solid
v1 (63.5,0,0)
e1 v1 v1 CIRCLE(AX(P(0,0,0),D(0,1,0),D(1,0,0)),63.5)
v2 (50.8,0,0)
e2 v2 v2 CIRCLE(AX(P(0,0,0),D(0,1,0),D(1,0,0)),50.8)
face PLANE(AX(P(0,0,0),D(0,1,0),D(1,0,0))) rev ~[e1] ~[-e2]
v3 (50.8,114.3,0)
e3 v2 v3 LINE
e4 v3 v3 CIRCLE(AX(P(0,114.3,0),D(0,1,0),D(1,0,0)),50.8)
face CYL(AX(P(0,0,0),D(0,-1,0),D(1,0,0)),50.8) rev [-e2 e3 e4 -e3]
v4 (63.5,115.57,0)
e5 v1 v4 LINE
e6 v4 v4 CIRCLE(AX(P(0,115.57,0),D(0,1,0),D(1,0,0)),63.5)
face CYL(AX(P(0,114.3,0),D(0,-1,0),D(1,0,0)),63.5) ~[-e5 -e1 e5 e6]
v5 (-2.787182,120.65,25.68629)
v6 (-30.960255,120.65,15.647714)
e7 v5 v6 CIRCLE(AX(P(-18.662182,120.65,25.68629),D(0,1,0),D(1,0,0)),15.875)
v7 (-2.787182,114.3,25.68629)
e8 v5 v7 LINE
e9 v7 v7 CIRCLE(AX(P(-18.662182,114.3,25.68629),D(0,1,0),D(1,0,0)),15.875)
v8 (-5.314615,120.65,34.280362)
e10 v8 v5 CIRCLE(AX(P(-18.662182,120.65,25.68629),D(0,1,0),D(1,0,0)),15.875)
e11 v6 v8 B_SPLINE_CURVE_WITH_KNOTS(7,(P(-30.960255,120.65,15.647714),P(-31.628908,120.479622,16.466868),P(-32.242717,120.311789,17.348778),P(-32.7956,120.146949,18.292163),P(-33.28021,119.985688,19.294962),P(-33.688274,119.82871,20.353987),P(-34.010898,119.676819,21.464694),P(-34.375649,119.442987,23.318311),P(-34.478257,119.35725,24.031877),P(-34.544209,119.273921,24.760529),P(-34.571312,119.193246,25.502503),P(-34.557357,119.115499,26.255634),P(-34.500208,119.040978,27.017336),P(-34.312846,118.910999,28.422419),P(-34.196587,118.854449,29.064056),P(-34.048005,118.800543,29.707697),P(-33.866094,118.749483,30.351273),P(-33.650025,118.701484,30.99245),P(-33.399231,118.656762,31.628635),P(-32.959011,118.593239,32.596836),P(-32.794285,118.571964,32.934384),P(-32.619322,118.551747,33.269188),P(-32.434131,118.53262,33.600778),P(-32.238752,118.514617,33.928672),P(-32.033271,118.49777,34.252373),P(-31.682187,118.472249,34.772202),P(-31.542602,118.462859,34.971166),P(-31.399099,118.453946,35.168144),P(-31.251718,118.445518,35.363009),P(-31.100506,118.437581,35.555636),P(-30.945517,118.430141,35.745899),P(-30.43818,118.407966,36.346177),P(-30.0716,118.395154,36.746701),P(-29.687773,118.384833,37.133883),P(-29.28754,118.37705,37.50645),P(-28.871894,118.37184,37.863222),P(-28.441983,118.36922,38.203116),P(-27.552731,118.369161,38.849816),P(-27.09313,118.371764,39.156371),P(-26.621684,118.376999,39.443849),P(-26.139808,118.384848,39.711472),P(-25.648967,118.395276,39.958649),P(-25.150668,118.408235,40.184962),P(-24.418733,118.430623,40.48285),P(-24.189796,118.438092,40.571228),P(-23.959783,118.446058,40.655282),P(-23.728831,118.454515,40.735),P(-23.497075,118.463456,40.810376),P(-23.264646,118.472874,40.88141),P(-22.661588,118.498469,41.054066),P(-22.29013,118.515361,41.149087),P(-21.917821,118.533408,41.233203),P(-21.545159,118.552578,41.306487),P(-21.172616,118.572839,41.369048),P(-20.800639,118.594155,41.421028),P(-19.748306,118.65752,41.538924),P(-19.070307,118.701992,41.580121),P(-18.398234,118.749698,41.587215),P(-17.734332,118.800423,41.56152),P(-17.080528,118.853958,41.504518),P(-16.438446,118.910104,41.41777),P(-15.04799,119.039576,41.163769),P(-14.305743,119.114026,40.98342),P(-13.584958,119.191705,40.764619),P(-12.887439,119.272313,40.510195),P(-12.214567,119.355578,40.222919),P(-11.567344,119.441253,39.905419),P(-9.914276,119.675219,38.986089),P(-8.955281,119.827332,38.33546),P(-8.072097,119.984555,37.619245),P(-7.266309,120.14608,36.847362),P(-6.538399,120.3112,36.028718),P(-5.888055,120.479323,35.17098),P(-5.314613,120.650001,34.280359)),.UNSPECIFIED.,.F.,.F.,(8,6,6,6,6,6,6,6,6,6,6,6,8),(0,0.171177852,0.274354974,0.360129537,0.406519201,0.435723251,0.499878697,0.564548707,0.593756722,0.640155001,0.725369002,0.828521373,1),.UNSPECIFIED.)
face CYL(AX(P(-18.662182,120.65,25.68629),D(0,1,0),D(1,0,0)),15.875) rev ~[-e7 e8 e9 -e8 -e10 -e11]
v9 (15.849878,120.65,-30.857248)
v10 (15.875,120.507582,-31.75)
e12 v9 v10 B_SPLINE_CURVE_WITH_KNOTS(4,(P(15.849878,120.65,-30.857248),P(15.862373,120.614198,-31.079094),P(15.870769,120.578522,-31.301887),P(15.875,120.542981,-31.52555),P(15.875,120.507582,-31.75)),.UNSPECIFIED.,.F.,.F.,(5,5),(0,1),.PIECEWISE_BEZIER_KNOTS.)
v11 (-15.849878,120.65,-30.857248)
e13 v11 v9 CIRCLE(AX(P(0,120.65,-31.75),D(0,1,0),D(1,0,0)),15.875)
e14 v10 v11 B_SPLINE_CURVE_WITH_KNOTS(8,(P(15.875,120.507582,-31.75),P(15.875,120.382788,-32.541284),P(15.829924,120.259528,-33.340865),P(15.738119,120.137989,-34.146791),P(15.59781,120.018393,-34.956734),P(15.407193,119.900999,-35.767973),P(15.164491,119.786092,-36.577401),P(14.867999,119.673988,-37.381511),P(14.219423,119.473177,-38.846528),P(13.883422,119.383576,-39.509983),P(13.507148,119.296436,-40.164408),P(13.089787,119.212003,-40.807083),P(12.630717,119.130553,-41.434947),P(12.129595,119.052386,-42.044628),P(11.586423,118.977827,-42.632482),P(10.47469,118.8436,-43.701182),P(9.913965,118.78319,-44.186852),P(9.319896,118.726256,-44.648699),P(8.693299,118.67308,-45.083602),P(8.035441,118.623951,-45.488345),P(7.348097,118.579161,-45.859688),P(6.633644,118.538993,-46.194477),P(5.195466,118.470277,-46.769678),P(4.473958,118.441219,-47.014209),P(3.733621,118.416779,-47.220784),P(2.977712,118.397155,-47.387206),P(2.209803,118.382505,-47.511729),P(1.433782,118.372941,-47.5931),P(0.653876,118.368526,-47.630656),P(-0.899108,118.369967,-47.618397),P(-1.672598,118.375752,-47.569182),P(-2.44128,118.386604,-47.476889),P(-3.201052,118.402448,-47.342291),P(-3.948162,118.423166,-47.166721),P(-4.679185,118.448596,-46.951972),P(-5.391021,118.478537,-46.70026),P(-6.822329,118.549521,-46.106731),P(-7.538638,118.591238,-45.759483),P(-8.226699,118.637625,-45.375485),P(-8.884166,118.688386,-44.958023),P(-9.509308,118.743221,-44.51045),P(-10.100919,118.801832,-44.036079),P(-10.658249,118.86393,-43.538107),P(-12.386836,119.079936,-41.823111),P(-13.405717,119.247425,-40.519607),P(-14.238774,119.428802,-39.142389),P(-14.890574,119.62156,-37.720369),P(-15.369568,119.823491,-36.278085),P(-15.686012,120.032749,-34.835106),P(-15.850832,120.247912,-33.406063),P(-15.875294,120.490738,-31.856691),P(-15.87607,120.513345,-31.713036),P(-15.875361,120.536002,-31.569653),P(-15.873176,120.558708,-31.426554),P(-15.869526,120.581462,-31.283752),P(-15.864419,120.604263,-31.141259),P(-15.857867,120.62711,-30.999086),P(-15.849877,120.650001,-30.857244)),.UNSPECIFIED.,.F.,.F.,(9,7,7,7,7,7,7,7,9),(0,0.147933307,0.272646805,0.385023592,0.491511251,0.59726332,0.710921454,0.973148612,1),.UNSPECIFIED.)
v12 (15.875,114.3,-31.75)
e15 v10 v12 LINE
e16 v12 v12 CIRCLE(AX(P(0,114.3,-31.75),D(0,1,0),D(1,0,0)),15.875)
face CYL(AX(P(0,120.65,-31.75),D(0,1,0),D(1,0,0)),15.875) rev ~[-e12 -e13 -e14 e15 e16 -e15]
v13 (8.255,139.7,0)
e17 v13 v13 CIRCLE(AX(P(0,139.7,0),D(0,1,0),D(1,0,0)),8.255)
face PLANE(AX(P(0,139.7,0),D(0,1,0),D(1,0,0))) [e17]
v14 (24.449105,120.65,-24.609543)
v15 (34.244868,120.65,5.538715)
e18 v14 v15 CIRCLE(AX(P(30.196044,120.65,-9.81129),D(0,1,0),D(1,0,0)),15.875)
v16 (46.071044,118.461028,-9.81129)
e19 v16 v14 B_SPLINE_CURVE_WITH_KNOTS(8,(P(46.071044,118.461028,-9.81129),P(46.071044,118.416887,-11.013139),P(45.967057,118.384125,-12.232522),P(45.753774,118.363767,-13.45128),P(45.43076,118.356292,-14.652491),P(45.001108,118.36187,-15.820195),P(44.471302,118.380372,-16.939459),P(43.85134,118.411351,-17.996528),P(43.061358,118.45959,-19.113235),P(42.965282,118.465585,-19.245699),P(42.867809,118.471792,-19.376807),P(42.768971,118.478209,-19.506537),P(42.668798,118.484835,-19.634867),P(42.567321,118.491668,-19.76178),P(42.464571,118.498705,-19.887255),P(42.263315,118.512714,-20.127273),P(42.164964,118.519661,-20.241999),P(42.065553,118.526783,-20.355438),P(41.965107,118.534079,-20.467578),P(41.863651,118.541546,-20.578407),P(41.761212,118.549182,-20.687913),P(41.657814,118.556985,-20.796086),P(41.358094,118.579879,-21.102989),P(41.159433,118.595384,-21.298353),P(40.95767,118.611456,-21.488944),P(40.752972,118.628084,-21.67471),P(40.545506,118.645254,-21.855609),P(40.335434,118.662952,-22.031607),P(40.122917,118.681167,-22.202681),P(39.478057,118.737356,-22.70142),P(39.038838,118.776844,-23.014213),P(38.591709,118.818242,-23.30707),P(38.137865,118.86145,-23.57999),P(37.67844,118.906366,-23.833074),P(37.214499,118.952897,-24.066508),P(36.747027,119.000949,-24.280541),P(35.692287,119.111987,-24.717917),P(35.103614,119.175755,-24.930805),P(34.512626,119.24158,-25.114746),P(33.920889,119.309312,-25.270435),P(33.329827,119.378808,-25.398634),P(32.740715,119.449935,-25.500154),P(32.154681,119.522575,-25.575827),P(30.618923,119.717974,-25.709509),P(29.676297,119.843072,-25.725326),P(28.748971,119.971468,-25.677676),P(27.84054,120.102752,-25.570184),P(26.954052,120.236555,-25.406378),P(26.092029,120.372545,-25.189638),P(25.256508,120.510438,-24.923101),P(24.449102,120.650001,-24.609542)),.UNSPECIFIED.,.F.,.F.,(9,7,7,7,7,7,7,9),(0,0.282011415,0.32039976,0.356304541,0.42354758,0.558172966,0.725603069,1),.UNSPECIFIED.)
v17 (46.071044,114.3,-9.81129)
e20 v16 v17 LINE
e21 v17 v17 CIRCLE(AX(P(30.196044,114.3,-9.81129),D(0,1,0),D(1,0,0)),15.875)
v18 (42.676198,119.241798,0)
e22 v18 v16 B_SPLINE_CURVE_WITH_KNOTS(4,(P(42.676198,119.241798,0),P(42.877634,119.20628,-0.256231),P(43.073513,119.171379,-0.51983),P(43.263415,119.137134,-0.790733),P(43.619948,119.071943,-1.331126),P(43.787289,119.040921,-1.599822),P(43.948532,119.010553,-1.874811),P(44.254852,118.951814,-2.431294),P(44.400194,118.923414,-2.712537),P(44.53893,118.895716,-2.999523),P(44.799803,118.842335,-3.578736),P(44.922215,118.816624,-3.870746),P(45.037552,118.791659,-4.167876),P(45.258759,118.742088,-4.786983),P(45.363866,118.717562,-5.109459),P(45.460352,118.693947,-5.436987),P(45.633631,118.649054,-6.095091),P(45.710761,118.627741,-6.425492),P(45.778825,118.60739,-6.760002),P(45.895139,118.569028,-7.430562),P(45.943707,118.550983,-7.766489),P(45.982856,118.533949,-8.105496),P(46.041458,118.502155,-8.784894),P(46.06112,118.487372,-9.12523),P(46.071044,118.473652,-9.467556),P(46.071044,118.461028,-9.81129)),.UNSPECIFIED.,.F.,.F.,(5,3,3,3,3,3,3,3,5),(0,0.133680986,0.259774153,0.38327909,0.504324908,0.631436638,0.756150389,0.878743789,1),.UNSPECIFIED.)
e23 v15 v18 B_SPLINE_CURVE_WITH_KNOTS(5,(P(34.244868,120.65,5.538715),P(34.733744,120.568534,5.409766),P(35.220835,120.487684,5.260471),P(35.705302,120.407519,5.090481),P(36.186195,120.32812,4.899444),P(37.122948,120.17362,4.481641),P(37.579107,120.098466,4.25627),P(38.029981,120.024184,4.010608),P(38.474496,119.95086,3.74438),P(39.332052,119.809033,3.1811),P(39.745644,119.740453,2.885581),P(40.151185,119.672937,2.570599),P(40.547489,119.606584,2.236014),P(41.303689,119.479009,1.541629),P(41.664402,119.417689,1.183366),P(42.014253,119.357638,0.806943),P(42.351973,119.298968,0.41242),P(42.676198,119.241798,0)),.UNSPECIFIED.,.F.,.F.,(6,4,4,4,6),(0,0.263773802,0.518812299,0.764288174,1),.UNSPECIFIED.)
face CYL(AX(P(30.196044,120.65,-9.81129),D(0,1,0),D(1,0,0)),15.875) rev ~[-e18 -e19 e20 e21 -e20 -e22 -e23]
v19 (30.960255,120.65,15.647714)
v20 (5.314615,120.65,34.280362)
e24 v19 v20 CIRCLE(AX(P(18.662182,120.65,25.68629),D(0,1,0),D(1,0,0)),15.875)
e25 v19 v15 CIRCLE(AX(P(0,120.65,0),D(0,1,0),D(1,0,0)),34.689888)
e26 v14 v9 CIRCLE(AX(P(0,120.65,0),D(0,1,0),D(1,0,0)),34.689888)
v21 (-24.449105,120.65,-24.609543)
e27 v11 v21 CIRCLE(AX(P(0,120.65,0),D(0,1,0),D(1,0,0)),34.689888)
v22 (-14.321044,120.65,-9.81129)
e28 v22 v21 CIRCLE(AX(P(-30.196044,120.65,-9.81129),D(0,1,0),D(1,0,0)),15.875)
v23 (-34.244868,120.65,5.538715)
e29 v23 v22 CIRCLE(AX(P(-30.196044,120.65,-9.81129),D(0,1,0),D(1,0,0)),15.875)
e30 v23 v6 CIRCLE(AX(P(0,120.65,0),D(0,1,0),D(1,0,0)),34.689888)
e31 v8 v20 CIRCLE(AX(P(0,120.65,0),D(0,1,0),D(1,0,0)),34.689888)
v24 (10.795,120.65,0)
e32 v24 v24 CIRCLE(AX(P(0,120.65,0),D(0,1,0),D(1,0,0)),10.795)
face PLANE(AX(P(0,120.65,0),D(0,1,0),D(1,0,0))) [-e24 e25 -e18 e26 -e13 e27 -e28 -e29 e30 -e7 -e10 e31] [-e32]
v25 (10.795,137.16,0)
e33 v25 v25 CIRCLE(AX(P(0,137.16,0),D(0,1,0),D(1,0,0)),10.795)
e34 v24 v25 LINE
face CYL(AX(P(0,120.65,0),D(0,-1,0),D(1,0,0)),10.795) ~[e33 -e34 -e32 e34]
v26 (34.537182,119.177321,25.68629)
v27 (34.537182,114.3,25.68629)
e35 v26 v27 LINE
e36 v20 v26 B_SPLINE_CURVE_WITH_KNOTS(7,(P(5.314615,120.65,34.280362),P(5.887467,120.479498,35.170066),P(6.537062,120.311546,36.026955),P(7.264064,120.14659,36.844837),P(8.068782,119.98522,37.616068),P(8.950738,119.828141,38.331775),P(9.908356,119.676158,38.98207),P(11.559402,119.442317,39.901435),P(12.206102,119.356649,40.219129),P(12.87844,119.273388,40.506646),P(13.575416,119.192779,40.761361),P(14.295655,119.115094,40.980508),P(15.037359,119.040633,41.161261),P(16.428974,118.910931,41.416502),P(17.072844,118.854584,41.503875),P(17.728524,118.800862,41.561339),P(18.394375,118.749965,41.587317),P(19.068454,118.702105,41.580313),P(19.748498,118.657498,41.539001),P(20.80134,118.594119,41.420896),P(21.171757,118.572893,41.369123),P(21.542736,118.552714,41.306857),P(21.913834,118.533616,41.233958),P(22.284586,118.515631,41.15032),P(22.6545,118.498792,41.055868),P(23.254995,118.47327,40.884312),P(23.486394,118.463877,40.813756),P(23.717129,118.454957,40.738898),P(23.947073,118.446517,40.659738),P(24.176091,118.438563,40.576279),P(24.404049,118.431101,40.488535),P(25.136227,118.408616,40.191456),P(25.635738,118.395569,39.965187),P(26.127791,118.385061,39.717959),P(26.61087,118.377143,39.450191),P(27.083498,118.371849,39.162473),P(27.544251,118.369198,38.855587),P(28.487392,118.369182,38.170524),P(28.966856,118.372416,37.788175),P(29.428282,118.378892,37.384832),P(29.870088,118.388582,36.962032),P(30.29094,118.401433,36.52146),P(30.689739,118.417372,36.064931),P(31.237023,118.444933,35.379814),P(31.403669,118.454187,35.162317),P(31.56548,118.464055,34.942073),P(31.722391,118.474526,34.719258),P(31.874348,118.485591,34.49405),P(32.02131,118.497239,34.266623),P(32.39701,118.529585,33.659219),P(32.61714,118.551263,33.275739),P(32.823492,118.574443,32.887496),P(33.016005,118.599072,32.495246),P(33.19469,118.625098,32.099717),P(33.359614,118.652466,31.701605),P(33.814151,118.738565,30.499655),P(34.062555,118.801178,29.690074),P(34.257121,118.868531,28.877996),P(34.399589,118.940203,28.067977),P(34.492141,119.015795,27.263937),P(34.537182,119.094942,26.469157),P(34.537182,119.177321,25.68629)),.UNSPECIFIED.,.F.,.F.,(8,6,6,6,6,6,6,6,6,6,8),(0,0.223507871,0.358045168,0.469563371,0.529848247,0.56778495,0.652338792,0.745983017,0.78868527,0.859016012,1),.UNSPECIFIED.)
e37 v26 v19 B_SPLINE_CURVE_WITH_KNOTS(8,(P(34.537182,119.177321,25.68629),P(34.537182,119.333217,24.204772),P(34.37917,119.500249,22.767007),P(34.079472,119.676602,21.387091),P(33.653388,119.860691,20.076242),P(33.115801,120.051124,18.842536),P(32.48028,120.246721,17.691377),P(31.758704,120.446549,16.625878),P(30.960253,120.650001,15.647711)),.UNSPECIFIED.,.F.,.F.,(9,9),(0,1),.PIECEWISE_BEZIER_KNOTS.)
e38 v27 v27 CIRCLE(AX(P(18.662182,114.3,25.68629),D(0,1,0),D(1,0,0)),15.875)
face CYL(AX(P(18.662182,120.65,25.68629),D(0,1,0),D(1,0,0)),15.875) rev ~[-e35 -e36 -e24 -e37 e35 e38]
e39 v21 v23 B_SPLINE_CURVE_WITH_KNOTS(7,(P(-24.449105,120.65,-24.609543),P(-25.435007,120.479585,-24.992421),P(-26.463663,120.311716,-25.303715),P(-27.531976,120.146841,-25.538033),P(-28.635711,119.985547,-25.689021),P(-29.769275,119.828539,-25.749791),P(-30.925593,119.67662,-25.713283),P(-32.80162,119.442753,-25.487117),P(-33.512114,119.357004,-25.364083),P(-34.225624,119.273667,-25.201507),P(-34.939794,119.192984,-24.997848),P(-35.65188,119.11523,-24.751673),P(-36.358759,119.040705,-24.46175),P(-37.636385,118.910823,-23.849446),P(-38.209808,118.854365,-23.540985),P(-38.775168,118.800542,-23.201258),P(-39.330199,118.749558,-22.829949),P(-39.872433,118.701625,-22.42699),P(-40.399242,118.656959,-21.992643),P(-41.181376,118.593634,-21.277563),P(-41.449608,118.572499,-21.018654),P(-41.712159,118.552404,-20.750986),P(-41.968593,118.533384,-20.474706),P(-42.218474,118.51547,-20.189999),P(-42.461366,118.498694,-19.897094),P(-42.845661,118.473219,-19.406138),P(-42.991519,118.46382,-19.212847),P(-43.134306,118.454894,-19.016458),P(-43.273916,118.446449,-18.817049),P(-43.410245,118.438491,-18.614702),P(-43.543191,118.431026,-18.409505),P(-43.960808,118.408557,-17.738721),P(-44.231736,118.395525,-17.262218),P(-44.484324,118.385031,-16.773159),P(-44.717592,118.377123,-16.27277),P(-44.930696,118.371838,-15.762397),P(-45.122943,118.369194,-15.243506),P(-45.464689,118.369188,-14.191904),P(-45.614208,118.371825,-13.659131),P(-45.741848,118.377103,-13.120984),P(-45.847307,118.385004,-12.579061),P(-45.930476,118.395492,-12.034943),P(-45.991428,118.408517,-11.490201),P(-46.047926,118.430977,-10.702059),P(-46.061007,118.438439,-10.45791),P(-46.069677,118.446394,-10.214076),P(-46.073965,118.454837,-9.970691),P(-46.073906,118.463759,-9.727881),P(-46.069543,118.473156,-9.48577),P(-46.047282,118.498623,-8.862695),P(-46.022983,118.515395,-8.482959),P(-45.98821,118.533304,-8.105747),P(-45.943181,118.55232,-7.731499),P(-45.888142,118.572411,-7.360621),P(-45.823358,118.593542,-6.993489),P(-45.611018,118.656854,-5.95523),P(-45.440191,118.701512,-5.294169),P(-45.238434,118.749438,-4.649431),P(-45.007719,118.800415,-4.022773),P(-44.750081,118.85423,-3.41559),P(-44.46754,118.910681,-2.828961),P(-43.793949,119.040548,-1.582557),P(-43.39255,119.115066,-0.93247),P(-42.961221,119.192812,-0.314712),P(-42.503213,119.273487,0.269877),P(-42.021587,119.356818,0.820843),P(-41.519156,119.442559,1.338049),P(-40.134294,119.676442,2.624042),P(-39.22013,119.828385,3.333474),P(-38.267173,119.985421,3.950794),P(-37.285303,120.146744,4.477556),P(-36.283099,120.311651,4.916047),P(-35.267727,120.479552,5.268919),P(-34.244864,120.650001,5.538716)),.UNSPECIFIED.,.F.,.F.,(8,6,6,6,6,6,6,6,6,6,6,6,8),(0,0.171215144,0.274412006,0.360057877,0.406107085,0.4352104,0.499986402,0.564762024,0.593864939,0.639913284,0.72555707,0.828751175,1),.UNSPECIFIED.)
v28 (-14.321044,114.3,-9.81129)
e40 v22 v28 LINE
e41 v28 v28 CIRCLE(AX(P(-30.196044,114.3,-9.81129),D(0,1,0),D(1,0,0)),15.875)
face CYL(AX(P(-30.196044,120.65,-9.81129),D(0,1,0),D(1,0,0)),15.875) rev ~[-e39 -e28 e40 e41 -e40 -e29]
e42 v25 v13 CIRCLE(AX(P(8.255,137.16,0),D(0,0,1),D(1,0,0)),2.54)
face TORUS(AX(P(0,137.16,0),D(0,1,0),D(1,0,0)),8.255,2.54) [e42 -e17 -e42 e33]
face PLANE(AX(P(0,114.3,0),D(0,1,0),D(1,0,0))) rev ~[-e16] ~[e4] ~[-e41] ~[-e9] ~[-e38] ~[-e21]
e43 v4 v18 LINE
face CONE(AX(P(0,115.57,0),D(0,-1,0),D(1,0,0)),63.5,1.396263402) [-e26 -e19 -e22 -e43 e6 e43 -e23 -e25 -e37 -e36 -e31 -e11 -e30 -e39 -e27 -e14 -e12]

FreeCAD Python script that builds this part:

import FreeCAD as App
import Part
import Sketcher
Q = App.Units.Quantity


def edges_at(feature, points):
    """Names of the edges that pass closest to the given points."""
    edges = feature.Shape.Edges
    near = lambda p: min(range(len(edges)), key=lambda i: edges[i].distToShape(Part.Vertex(*p))[0])
    return sorted({f"Edge{near(p) + 1}" for p in points})

doc = App.newDocument("Part")
params = doc.addObject("Spreadsheet::Sheet", "Params")
for row, (alias, value) in enumerate([
    ("sketch1_diameter", "5 in"),
    ("sketch1_diameter2", "4 in"),
    ("pad1_length", "4.5 in"),
    ("sketch2_diameter", "5 in"),
    ("pad2_length", "0.25 in"),
    ("chamfer_size", "0.2 in"),
    ("chamfer_size2", "28.810112 mm"),
    ("sketch3_diameter", "1.25 in"),
    ("sketch4_diameter", "0.85 in"),
    ("pad3_length", "0.75 in"),
    ("fillet_radius", "0.1 in"),
], start=1):
    params.set(f"A{row}", alias)
    params.set(f"B{row}", "=" + value)
    params.setAlias(f"B{row}", alias)

body = doc.addObject("PartDesign::Body", "Body")

sketch1 = body.newObject("Sketcher::SketchObject", "Sketch")
sketch1.AttachmentSupport = (doc.getObject("XZ_Plane"), [""])
sketch1.MapMode = "FlatFace"
sketch1.addGeometry(Part.Circle(App.Vector(0, 0, 0), App.Vector(0, 0, 1), 63.5), False)
sketch1.addGeometry(Part.Circle(App.Vector(0, 0, 0), App.Vector(0, 0, 1), 50.8), False)
sketch1.addConstraint(Sketcher.Constraint("Coincident", 0, 3, -1, 1))
sketch1.addConstraint(Sketcher.Constraint("Coincident", 1, 3, -1, 1))
sketch1.addConstraint(Sketcher.Constraint("Diameter", 0, Q("5 in")))
sketch1.addConstraint(Sketcher.Constraint("Diameter", 1, Q("4 in")))
sketch1.setExpression("Constraints[2]", "Params.sketch1_diameter")
sketch1.setExpression("Constraints[3]", "Params.sketch1_diameter2")
pad1 = body.newObject("PartDesign::Pad", "Pad")
pad1.Profile = sketch1
pad1.setExpression("Length", "Params.pad1_length")
pad1.Reversed = True

sketch2 = body.newObject("Sketcher::SketchObject", "Sketch001")
sketch2.AttachmentSupport = (doc.getObject("XZ_Plane"), [""])
sketch2.MapMode = "FlatFace"
sketch2.AttachmentOffset = App.Placement(App.Vector(0, 0, -4.5 * 25.4), App.Rotation())
sketch2.addGeometry(Part.Circle(App.Vector(0, 0, 0), App.Vector(0, 0, 1), 63.5), False)
sketch2.addConstraint(Sketcher.Constraint("Coincident", 0, 3, -1, 1))
sketch2.addConstraint(Sketcher.Constraint("Diameter", 0, Q("5 in")))
sketch2.setExpression("Constraints[1]", "Params.sketch2_diameter")
pad2 = body.newObject("PartDesign::Pad", "Pad001")
pad2.Profile = sketch2
pad2.setExpression("Length", "Params.pad2_length")
pad2.Reversed = True
doc.recompute()

chamfer = body.newObject("PartDesign::Chamfer", "Chamfer")
chamfer.Base = (pad2, edges_at(pad2, [(-63.5, 120.65, 0)]))
chamfer.ChamferType = "Two distances"
chamfer.setExpression("Size", "Params.chamfer_size")
chamfer.setExpression("Size2", "Params.chamfer_size2")

sketch3 = body.newObject("Sketcher::SketchObject", "Sketch002")
sketch3.AttachmentSupport = (doc.getObject("XZ_Plane"), [""])
sketch3.MapMode = "FlatFace"
sketch3.AttachmentOffset = App.Placement(App.Vector(0, 0, -4.75 * 25.4), App.Rotation())
sketch3.addGeometry(Part.Circle(App.Vector(0, -31.75, 0), App.Vector(0, 0, 1), 15.875), False)
sketch3.addGeometry(Part.Circle(App.Vector(30.196044, -9.81129, 0), App.Vector(0, 0, 1), 15.875), False)
sketch3.addGeometry(Part.Circle(App.Vector(18.662182, 25.68629, 0), App.Vector(0, 0, 1), 15.875), False)
sketch3.addGeometry(Part.Circle(App.Vector(-18.662182, 25.68629, 0), App.Vector(0, 0, 1), 15.875), False)
sketch3.addGeometry(Part.Circle(App.Vector(-30.196044, -9.81129, 0), App.Vector(0, 0, 1), 15.875), False)
sketch3.addConstraint(Sketcher.Constraint("Equal", 0, 1))
sketch3.addConstraint(Sketcher.Constraint("Equal", 1, 2))
sketch3.addConstraint(Sketcher.Constraint("Equal", 2, 3))
sketch3.addConstraint(Sketcher.Constraint("Equal", 3, 4))
sketch3.addConstraint(Sketcher.Constraint("Symmetric", 2, 3, 3, 3, -2))
sketch3.addConstraint(Sketcher.Constraint("Symmetric", 1, 3, 4, 3, -2))
sketch3.addConstraint(Sketcher.Constraint("PointOnObject", 0, 3, -2))
sketch3.addConstraint(Sketcher.Constraint("Diameter", 0, Q("1.25 in")))
sketch3.addConstraint(Sketcher.Constraint("DistanceY", 0, 3, -1, 1, Q("1.25 in")))
sketch3.addConstraint(Sketcher.Constraint("DistanceY", 1, 3, -1, 1, Q("9.81129 mm")))
sketch3.addConstraint(Sketcher.Constraint("DistanceX", -1, 1, 2, 3, Q("18.662182 mm")))
sketch3.addConstraint(Sketcher.Constraint("DistanceY", -1, 1, 2, 3, Q("25.68629 mm")))
sketch3.addConstraint(Sketcher.Constraint("DistanceX", 4, 3, 1, 3, Q("60.392089 mm")))
sketch3.setExpression("Constraints[7]", "Params.sketch3_diameter")
pocket1 = body.newObject("PartDesign::Pocket", "Pocket")
pocket1.Profile = sketch3
pocket1.Type = "ThroughAll"
pocket1.Reversed = True

sketch4 = body.newObject("Sketcher::SketchObject", "Sketch003")
sketch4.AttachmentSupport = (doc.getObject("XZ_Plane"), [""])
sketch4.MapMode = "FlatFace"
sketch4.AttachmentOffset = App.Placement(App.Vector(0, 0, -4.75 * 25.4), App.Rotation())
sketch4.addGeometry(Part.Circle(App.Vector(0, 0, 0), App.Vector(0, 0, 1), 10.795), False)
sketch4.addConstraint(Sketcher.Constraint("Coincident", 0, 3, -1, 1))
sketch4.addConstraint(Sketcher.Constraint("Diameter", 0, Q("0.85 in")))
sketch4.setExpression("Constraints[1]", "Params.sketch4_diameter")
pad3 = body.newObject("PartDesign::Pad", "Pad002")
pad3.Profile = sketch4
pad3.setExpression("Length", "Params.pad3_length")
pad3.Reversed = True
doc.recompute()

fillet = body.newObject("PartDesign::Fillet", "Fillet")
fillet.Base = (pad3, edges_at(pad3, [(-10.795, 139.7, 0)]))
fillet.setExpression("Radius", "Params.fillet_radius")

doc.recompute()
